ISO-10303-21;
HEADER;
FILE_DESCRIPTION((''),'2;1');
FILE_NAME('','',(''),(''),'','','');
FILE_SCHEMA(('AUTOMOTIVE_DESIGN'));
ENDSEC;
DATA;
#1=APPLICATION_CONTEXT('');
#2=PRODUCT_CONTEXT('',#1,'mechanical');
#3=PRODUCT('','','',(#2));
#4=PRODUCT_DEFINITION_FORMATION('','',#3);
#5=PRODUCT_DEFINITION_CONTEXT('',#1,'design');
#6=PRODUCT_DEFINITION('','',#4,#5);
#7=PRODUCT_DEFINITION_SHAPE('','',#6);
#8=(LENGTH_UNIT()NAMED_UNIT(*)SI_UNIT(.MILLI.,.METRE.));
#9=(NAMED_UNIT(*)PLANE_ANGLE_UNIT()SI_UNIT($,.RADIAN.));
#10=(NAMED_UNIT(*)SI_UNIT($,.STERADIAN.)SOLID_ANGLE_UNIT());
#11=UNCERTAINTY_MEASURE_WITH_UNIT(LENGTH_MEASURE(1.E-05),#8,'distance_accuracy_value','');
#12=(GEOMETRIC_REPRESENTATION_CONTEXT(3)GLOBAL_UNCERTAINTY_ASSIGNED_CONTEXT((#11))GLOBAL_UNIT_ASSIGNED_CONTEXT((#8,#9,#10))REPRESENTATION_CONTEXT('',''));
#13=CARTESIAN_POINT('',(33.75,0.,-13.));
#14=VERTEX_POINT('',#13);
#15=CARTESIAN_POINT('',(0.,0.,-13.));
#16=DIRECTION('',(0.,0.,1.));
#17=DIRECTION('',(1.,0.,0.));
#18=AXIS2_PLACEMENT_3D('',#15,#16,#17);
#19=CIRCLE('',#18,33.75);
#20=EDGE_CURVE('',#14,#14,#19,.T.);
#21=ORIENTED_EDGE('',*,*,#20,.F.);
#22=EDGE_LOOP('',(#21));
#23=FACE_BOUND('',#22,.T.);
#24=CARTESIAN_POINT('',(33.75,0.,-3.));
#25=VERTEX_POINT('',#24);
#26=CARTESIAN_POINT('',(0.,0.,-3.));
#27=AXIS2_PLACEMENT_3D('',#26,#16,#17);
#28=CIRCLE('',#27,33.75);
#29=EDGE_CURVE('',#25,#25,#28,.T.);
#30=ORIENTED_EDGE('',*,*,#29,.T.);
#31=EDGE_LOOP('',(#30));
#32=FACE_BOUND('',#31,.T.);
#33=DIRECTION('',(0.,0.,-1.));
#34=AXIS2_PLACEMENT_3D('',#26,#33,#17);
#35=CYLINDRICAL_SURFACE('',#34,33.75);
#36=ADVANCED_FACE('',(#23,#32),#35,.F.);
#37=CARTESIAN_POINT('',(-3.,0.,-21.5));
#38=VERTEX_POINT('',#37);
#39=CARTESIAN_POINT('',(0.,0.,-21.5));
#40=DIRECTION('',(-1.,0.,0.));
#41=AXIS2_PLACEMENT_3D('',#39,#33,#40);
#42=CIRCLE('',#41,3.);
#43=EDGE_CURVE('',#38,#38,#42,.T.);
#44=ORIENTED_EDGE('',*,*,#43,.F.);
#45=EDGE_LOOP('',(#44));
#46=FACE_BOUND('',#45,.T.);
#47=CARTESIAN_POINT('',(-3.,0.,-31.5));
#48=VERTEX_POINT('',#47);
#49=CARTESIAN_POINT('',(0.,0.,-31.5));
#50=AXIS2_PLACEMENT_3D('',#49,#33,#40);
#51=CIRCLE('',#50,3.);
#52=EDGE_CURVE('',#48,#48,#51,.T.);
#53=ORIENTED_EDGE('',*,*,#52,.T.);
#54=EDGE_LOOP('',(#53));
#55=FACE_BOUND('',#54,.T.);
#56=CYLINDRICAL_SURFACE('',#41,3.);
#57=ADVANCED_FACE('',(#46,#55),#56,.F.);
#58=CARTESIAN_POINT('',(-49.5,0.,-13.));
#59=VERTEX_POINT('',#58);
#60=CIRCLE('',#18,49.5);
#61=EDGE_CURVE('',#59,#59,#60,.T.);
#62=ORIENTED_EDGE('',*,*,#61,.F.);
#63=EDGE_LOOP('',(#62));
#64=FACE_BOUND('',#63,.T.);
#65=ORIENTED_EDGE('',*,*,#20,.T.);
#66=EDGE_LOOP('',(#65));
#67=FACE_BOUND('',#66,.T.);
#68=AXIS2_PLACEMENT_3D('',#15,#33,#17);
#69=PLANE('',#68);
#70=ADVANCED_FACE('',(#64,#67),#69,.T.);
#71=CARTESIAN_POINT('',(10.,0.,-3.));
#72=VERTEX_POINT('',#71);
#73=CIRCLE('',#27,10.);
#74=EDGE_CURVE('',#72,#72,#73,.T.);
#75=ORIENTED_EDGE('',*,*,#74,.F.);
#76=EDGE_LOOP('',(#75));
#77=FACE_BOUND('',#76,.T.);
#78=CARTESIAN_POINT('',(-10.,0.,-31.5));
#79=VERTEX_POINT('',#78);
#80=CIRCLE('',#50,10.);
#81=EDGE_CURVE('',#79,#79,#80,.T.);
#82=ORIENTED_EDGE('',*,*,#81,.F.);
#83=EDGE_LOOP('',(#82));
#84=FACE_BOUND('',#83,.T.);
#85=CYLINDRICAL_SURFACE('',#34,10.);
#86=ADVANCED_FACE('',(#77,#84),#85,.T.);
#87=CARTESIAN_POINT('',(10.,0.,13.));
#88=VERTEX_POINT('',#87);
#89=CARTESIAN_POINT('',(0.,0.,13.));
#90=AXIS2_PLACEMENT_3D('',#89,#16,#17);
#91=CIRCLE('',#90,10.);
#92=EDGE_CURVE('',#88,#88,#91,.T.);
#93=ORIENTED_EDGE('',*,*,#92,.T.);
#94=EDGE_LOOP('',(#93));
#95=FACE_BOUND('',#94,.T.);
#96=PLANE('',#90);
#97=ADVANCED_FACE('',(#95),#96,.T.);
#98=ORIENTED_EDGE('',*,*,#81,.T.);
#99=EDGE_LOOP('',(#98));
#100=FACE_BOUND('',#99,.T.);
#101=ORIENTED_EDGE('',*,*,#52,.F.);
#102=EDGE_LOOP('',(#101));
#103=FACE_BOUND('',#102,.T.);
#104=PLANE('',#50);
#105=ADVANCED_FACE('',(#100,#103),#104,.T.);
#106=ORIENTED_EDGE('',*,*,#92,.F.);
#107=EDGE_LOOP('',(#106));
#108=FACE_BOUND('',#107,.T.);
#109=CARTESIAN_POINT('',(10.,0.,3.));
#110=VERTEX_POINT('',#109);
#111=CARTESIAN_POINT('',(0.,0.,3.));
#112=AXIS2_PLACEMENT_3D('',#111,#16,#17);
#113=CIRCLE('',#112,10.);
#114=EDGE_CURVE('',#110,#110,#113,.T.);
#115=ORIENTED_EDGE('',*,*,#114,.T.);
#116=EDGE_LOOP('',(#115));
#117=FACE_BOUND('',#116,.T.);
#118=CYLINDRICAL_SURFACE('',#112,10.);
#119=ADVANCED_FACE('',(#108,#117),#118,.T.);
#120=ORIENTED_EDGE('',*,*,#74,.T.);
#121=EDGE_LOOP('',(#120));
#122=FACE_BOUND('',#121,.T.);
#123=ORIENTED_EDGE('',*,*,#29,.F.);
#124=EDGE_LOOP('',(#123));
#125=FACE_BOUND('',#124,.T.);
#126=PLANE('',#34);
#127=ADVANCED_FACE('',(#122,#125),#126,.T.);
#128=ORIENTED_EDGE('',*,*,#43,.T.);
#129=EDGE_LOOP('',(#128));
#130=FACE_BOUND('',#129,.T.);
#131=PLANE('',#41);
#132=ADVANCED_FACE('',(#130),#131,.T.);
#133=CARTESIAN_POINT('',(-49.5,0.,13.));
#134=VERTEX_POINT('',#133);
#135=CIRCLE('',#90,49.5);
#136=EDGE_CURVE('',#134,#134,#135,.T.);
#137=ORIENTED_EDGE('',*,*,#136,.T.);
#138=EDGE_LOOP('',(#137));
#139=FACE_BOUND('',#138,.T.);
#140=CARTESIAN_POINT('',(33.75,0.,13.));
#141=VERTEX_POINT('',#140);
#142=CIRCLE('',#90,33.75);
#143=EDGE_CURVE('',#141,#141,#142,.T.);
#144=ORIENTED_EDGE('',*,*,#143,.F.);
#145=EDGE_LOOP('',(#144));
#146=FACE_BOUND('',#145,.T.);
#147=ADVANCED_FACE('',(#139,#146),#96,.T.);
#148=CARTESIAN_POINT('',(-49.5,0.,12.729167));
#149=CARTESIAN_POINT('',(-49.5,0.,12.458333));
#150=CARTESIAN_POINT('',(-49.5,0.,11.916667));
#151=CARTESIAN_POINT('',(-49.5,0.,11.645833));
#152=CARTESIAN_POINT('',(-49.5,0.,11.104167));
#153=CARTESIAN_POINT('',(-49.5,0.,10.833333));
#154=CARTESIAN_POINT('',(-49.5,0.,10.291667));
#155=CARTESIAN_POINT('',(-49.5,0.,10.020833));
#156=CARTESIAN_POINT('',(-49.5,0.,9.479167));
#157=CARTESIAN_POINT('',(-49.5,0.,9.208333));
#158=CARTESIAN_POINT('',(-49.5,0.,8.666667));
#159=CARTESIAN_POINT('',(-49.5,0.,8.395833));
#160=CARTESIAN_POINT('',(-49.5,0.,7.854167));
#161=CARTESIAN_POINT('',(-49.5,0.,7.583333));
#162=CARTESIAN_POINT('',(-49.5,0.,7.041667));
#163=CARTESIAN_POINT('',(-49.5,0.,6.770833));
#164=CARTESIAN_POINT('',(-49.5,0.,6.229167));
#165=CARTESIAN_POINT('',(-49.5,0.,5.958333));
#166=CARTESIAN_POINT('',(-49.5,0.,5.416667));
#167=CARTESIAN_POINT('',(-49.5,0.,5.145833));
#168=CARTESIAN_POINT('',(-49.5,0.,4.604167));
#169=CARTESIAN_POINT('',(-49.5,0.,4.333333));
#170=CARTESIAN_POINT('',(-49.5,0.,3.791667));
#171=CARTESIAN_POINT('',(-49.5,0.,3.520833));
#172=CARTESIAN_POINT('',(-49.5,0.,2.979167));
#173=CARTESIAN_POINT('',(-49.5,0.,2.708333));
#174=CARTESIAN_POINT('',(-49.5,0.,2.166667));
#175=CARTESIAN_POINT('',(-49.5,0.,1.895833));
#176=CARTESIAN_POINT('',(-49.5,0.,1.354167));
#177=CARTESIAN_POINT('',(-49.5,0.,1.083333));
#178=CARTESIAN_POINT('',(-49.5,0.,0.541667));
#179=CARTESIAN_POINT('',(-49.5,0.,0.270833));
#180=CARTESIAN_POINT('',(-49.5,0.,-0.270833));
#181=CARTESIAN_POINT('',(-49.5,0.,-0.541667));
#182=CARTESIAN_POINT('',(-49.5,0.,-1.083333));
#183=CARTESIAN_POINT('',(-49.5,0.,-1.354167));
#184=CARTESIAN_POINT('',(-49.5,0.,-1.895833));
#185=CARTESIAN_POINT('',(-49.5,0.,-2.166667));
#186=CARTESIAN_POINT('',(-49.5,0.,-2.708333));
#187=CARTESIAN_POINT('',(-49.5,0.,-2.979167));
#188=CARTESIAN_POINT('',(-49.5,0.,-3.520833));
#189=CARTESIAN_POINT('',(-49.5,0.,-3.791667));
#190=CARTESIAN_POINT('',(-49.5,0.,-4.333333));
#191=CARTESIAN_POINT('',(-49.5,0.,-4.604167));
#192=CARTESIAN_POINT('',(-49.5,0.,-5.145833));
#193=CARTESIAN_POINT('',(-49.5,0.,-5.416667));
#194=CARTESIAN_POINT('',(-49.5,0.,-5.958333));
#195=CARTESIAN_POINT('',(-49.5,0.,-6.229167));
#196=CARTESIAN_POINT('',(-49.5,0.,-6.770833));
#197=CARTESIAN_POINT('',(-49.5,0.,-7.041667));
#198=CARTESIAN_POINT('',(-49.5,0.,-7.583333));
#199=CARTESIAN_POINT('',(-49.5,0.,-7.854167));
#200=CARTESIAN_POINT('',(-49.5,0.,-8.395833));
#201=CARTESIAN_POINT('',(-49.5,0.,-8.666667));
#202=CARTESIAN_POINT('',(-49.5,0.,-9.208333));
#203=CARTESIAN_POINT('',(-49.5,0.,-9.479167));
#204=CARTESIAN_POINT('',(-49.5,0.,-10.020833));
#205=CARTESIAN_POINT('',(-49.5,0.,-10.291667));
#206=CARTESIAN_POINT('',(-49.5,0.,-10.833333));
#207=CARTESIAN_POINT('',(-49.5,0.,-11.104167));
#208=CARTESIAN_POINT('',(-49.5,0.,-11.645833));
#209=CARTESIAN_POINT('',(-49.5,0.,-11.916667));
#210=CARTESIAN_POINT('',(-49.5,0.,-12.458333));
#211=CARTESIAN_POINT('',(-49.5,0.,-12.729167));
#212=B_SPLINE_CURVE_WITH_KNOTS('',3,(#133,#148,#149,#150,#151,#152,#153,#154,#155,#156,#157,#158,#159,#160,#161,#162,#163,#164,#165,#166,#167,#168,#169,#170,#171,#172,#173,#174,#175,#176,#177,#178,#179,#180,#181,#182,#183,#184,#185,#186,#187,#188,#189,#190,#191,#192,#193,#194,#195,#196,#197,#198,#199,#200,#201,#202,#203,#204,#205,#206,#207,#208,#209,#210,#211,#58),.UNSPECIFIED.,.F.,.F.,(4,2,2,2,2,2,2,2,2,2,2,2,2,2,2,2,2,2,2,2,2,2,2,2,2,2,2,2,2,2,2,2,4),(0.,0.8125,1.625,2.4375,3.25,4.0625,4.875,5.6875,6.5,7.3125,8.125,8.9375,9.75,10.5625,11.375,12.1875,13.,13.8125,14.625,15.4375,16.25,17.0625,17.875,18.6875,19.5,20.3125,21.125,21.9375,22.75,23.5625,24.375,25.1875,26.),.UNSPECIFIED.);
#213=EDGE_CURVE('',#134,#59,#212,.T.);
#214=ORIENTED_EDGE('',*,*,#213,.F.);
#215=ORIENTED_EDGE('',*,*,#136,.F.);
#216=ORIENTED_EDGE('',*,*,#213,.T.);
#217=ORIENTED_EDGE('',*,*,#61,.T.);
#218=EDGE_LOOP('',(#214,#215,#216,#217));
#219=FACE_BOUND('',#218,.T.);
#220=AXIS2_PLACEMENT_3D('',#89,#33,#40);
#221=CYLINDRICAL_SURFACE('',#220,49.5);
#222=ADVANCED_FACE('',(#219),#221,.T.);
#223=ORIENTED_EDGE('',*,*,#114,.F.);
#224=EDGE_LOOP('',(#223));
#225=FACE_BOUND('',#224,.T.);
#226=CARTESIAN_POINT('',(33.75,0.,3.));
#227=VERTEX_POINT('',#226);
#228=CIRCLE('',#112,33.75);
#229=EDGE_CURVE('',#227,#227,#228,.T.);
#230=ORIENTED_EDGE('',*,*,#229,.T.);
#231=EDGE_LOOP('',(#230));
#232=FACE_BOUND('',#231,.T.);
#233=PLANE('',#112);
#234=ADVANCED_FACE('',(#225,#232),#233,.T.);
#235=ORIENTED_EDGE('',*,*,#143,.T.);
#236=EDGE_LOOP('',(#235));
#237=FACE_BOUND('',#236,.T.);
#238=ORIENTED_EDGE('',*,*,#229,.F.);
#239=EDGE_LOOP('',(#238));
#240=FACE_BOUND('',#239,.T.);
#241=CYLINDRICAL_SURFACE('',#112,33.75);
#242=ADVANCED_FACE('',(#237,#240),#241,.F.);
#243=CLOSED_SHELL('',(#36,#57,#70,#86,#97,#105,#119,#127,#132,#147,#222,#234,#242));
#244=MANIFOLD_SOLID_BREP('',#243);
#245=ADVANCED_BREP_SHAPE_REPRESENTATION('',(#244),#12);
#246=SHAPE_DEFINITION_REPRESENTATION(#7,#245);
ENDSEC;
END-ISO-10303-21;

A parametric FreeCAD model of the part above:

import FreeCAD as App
import Part
import Sketcher

V = App.Vector
Q = App.Units.Quantity

doc = App.newDocument("Part")
body = doc.addObject("PartDesign::Body", "Body")

sketch1 = doc.addObject("Sketcher::SketchObject", "Sketch")
body.addObject(sketch1)
sketch1.AttachmentSupport = (doc.XY_Plane, [""])
sketch1.MapMode = "FlatFace"
sketch1.addGeometry(Part.Circle(V(0, 0, 0), V(0, 0, 1), 50), False)
sketch1.addConstraint(Sketcher.Constraint("Coincident", 0, 3, -1, 1))
sketch1.addConstraint(Sketcher.Constraint("Diameter", 0, Q("99 mm")))
pad1 = doc.addObject("PartDesign::Pad", "Pad")
body.addObject(pad1)
pad1.Profile = sketch1
pad1.Length = 13

sketch2 = doc.addObject("Sketcher::SketchObject", "Sketch001")
body.addObject(sketch2)
sketch2.AttachmentSupport = (doc.XY_Plane, [""])
sketch2.MapMode = "FlatFace"
sketch2.AttachmentOffset = App.Placement(V(0, 0, 13), App.Rotation())
sketch2.addGeometry(Part.Circle(V(0, 0, 0), V(0, 0, 1), 34), False)
sketch2.addGeometry(Part.Circle(V(0, 0, 0), V(0, 0, 1), 10), False)
sketch2.addConstraint(Sketcher.Constraint("Coincident", 0, 3, -1, 1))
sketch2.addConstraint(Sketcher.Constraint("Coincident", 1, 3, -1, 1))
sketch2.addConstraint(Sketcher.Constraint("Diameter", 1, Q("20 mm")))
sketch2.addConstraint(Sketcher.Constraint("Diameter", 0, Q("67.5 mm")))
pocket1 = doc.addObject("PartDesign::Pocket", "Pocket")
body.addObject(pocket1)
pocket1.Profile = sketch2
pocket1.Length = 10
body2 = doc.addObject("PartDesign::Body", "Body001")
doc.recompute()

body2.BaseFeature = body
doc.recompute()

mirroring = doc.addObject("Part::Mirroring", "Mirroring")
mirroring.Source = body
mirroring.Base = V(0, 0, 0)
mirroring.Normal = V(0, 0, 1)
body3 = doc.addObject("PartDesign::Body", "Body002")
body3.BaseFeature = mirroring
boolean = doc.addObject("PartDesign::Boolean", "Boolean")
body2.addObject(boolean)
boolean.Type = "Fuse"
boolean.addObjects([body3])
doc.recompute()

sketch3 = doc.addObject("Sketcher::SketchObject", "Sketch002")
body2.addObject(sketch3)
sketch3.AttachmentSupport = (doc.getObject("XY_Plane001"), [""])
sketch3.MapMode = "FlatFace"
sketch3.AttachmentOffset = App.Placement(V(0, 0, -13), App.Rotation())
sketch3.addGeometry(Part.Circle(V(0, 0, 0), V(0, 0, 1), 10), False)
sketch3.addConstraint(Sketcher.Constraint("Coincident", 0, 3, -1, 1))
sketch3.addConstraint(Sketcher.Constraint("Diameter", 0, Q("20 mm")))
pad2 = doc.addObject("PartDesign::Pad", "Pad001")
body2.addObject(pad2)
pad2.Profile = sketch3
pad2.Length = 18.5
pad2.Reversed = True

sketch4 = doc.addObject("Sketcher::SketchObject", "Sketch003")
body2.addObject(sketch4)
sketch4.AttachmentSupport = (doc.getObject("XY_Plane001"), [""])
sketch4.MapMode = "FlatFace"
sketch4.AttachmentOffset = App.Placement(V(0, 0, -31.5), App.Rotation())
sketch4.addGeometry(Part.Circle(V(0, 0, 0), V(0, 0, 1), 3), False)
sketch4.addConstraint(Sketcher.Constraint("Coincident", 0, 3, -1, 1))
sketch4.addConstraint(Sketcher.Constraint("Diameter", 0, Q("6 mm")))
pocket2 = doc.addObject("PartDesign::Pocket", "Pocket001")
body2.addObject(pocket2)
pocket2.Profile = sketch4
pocket2.Length = 10
pocket2.Reversed = True
mirroring.Visibility = False

doc.recompute()
